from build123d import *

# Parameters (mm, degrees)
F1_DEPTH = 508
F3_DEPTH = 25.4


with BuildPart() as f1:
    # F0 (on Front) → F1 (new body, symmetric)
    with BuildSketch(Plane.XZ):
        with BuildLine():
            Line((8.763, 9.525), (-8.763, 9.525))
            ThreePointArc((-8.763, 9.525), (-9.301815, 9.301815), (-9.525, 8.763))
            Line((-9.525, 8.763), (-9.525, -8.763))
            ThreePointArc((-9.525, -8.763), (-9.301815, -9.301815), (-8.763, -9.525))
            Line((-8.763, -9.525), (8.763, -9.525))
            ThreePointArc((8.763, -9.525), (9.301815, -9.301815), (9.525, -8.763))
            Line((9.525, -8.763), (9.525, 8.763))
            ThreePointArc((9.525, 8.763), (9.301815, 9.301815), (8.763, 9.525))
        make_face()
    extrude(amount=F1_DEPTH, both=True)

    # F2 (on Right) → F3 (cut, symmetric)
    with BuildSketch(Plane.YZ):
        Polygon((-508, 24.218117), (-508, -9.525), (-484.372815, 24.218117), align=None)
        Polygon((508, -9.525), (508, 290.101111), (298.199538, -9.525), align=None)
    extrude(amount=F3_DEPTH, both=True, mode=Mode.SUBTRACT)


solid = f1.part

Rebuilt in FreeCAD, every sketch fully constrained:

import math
import FreeCAD as App
import Part
import Sketcher

V = App.Vector
Q = App.Units.Quantity


def add_polygon(sketch, points):
    """Adds a closed chain of lines whose ends are joined by coincident constraints."""
    first, n = sketch.GeometryCount, len(points)
    for a, b in zip(points, points[1:] + points[:1]):
        sketch.addGeometry(Part.LineSegment(App.Vector(*a, 0), App.Vector(*b, 0)), False)
    for i in range(n):
        sketch.addConstraint(Sketcher.Constraint("Coincident", first + i, 2, first + (i + 1) % n, 1))

doc = App.newDocument("Part")
body = doc.addObject("PartDesign::Body", "Body")

# Sketch on XZ plane
sketch1 = body.newObject("Sketcher::SketchObject", "Sketch")
sketch1.AttachmentSupport = (doc.getObject("XZ_Plane"), [""])
sketch1.MapMode = "FlatFace"
sketch1.addGeometry([
    Part.LineSegment(V(8.763, 9.525, 0), V(-8.763, 9.525, 0)),  # 0
    Part.ArcOfCircle(Part.Circle(V(-8.762999, 8.762999, 0), V(0, 0, 1), 0.762001), math.radians(90.000094), math.radians(179.999906)),  # 1
    Part.LineSegment(V(-9.525, 8.763, 0), V(-9.525, -8.763, 0)),  # 2
    Part.ArcOfCircle(Part.Circle(V(-8.762999, -8.762999, 0), V(0, 0, 1), 0.762001), math.radians(-179.999906), math.radians(-90.000094)),  # 3
    Part.LineSegment(V(-8.763, -9.525, 0), V(8.763, -9.525, 0)),  # 4
    Part.ArcOfCircle(Part.Circle(V(8.762999, -8.762999, 0), V(0, 0, 1), 0.762001), math.radians(-89.999906), math.radians(-0.000094)),  # 5
    Part.LineSegment(V(9.525, -8.763, 0), V(9.525, 8.763, 0)),  # 6
    Part.ArcOfCircle(Part.Circle(V(8.762999, 8.762999, 0), V(0, 0, 1), 0.762001), math.radians(0.000094), math.radians(89.999906)),  # 7
], False)
sketch1.addConstraint([
    Sketcher.Constraint("Tangent", 0, 2, 1, 1),
    Sketcher.Constraint("Tangent", 1, 2, 2, 1),
    Sketcher.Constraint("Tangent", 2, 2, 3, 1),
    Sketcher.Constraint("Tangent", 3, 2, 4, 1),
    Sketcher.Constraint("Tangent", 4, 2, 5, 1),
    Sketcher.Constraint("Tangent", 5, 2, 6, 1),
    Sketcher.Constraint("Tangent", 6, 2, 7, 1),
    Sketcher.Constraint("Tangent", 7, 2, 0, 1),
    Sketcher.Constraint("Horizontal", 0),
    Sketcher.Constraint("Vertical", 2),
    Sketcher.Constraint("Horizontal", 4),
    Sketcher.Constraint("Vertical", 6),
    Sketcher.Constraint("Equal", 1, 3),
    Sketcher.Constraint("Equal", 3, 5),
    Sketcher.Constraint("Equal", 5, 7),
    Sketcher.Constraint("Symmetric", 1, 3, 5, 3, -1, 1),
    Sketcher.Constraint("Equal", 4, 2),
    Sketcher.Constraint("Radius", 1, Q("0.03 in")),
    Sketcher.Constraint("DistanceX", 0, 2, 0, 1, Q("0.69 in")),
])
pad1 = body.newObject("PartDesign::Pad", "Pad")
pad1.Profile = sketch1
pad1.Length = Q("40 in")
pad1.Midplane = True

# Sketch on YZ plane
sketch2 = body.newObject("Sketcher::SketchObject", "Sketch001")
sketch2.AttachmentSupport = (doc.getObject("YZ_Plane"), [""])
sketch2.MapMode = "FlatFace"
add_polygon(sketch2, [(-508, 24.218117), (-508, -9.525), (-484.372815, 24.218117)])  # lines 0-2
add_polygon(sketch2, [(508, -9.525), (508, 290.101111), (298.199538, -9.525)])  # lines 3-5
sketch2.addConstraint([
    Sketcher.Constraint("Vertical", 0),
    Sketcher.Constraint("Horizontal", 2),
    Sketcher.Constraint("Vertical", 3),
    Sketcher.Constraint("Horizontal", 5),
    Sketcher.Constraint("Symmetric", 0, 2, 5, 2, -2),
    Sketcher.Constraint("Parallel", 1, 4),
    Sketcher.Constraint("DistanceX", 0, 2, -1, 1, Q("20 in")),
    Sketcher.Constraint("Angle", 1, Q("55 deg")),
    Sketcher.Constraint("DistanceY", 0, 2, -1, 1, Q("0.375 in")),
    Sketcher.Constraint("DistanceX", 5, 1, 5, 2, Q("209.800462 mm")),
    Sketcher.Constraint("Distance", 1, Q("41.19274 mm")),
])
pocket1 = body.newObject("PartDesign::Pocket", "Pocket")
pocket1.Profile = sketch2
pocket1.Length = Q("2 in")
pocket1.Midplane = True

doc.recompute()
